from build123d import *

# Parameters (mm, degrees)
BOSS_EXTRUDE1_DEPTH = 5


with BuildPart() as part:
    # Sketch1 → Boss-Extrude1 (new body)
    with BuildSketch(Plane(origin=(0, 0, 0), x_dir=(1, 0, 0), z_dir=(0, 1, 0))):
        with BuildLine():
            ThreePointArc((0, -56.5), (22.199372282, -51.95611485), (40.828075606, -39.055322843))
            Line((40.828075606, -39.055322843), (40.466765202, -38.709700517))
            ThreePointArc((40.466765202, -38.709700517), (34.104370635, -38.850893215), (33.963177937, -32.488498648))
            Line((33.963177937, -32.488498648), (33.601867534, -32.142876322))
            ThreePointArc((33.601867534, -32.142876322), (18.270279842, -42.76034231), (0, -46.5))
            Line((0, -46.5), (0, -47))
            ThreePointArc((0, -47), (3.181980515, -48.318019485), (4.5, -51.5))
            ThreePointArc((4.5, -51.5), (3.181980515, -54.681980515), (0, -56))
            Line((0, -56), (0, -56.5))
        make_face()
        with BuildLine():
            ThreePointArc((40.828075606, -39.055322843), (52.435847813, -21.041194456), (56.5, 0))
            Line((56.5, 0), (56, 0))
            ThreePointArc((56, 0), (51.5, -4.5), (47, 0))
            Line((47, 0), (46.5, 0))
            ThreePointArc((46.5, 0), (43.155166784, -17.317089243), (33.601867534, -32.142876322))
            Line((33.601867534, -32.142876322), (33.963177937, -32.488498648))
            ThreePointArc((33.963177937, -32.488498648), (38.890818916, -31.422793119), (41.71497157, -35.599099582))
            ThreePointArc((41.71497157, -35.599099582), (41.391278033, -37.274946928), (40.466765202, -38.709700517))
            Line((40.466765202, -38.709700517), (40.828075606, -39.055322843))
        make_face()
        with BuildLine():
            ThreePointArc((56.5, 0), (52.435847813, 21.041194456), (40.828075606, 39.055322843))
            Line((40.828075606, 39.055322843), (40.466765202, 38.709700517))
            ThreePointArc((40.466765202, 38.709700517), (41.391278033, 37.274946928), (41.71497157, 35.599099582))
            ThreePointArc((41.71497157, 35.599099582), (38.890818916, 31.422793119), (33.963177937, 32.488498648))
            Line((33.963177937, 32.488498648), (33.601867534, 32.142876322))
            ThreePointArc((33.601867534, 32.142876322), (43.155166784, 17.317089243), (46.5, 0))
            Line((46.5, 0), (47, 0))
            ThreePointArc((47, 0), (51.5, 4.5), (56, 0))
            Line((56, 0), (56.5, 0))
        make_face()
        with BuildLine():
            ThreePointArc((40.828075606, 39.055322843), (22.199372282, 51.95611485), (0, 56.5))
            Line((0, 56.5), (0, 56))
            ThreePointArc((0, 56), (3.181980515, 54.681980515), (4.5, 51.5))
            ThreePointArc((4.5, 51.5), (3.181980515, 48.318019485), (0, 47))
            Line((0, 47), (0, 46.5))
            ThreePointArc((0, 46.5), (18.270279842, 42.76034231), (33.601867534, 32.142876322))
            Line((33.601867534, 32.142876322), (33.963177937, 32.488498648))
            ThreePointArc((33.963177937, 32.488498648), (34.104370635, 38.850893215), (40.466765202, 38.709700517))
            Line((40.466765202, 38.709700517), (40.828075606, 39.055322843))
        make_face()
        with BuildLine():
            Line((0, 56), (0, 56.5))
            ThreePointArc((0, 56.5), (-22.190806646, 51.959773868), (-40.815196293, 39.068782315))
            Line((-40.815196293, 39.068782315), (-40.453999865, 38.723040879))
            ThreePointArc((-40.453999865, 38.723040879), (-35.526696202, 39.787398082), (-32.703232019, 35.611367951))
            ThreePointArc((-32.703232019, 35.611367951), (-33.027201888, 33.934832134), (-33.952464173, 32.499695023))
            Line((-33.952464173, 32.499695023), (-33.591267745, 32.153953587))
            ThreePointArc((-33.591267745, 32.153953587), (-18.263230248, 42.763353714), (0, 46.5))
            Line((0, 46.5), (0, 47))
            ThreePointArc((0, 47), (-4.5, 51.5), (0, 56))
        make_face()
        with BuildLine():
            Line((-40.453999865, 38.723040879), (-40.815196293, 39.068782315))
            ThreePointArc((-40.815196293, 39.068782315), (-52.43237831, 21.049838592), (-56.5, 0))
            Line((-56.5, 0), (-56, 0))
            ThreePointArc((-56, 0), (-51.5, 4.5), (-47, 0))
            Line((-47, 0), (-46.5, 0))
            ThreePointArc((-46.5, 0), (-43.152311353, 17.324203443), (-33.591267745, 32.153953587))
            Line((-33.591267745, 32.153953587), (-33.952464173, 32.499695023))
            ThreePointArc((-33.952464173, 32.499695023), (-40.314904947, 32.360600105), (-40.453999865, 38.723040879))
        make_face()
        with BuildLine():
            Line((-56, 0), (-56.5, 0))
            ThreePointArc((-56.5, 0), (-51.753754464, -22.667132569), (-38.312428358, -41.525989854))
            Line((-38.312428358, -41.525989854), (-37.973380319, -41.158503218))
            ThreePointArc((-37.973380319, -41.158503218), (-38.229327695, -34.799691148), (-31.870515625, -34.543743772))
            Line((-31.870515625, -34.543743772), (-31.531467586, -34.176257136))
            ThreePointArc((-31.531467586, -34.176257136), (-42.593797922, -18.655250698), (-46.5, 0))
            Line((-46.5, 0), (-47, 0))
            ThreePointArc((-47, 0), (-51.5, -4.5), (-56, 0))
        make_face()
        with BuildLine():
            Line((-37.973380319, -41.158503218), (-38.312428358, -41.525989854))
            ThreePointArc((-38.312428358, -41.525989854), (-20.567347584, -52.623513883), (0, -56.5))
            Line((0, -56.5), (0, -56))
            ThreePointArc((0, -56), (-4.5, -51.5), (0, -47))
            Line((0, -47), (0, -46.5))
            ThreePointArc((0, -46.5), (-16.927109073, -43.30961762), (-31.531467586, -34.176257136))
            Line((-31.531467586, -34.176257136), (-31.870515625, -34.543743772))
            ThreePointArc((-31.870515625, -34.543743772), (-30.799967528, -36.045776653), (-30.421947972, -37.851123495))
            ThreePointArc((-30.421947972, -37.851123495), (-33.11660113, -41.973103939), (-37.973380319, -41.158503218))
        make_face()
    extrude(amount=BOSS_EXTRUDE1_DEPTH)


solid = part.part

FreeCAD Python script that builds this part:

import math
import FreeCAD as App
import Part
import Sketcher

V = App.Vector

doc = App.newDocument("Part")
body = doc.addObject("PartDesign::Body", "Body")

# Sketch on XZ plane
sketch1 = doc.addObject("Sketcher::SketchObject", "Sketch")
body.addObject(sketch1)
sketch1.AttachmentSupport = (doc.XZ_Plane, [""])
sketch1.MapMode = "FlatFace"
sketch1.addGeometry([
    Part.ArcOfCircle(Part.Circle(V(0, 0, 0), V(0, 0, 1), 56.5), math.radians(44), math.radians(90)),  # 0
    Part.ArcOfCircle(Part.Circle(V(0, 0, 0), V(0, 0, 1), 56.5), math.radians(0), math.radians(44)),  # 1
    Part.ArcOfCircle(Part.Circle(V(0, 0, 0), V(0, 0, 1), 56.5), math.radians(-44), math.radians(0)),  # 2
    Part.ArcOfCircle(Part.Circle(V(0, 0, 0), V(0, 0, 1), 56.5), math.radians(-90), math.radians(-44)),  # 3
    Part.ArcOfCircle(Part.Circle(V(0, 0, 0), V(0, 0, 1), 56.5), math.radians(-136), math.radians(-90)),  # 4
    Part.ArcOfCircle(Part.Circle(V(0, 0, 0), V(0, 0, 1), 56.5), math.radians(-180), math.radians(-136)),  # 5
    Part.ArcOfCircle(Part.Circle(V(0, 0, 0), V(0, 0, 1), 56.5), math.radians(133), math.radians(180)),  # 6
    Part.ArcOfCircle(Part.Circle(V(0, 0, 0), V(0, 0, 1), 56.5), math.radians(90), math.radians(133)),  # 7
    Part.ArcOfCircle(Part.Circle(V(-34.9, 37.9, 0), V(0, 0, 1), 4.5), math.radians(133), math.radians(313)),  # 8
    Part.ArcOfCircle(Part.Circle(V(-34.9, 37.9, 0), V(0, 0, 1), 4.5), math.radians(-47), math.radians(0)),  # 9
    Part.ArcOfCircle(Part.Circle(V(-34.9, 37.9, 0), V(0, 0, 1), 4.5), math.radians(0), math.radians(133)),  # 10
    Part.ArcOfCircle(Part.Circle(V(0, 0, 0), V(0, 0, 1), 46.5), math.radians(133), math.radians(180)),  # 11
    Part.ArcOfCircle(Part.Circle(V(0, 0, 0), V(0, 0, 1), 46.5), math.radians(180), math.radians(224)),  # 12
    Part.ArcOfCircle(Part.Circle(V(0, 0, 0), V(0, 0, 1), 46.5), math.radians(-136), math.radians(-90)),  # 13
    Part.ArcOfCircle(Part.Circle(V(0, 0, 0), V(0, 0, 1), 46.5), math.radians(-90), math.radians(-44)),  # 14
    Part.ArcOfCircle(Part.Circle(V(0, 0, 0), V(0, 0, 1), 46.5), math.radians(-44), math.radians(0)),  # 15
    Part.ArcOfCircle(Part.Circle(V(0, 0, 0), V(0, 0, 1), 46.5), math.radians(0), math.radians(44)),  # 16
    Part.ArcOfCircle(Part.Circle(V(0, 0, 0), V(0, 0, 1), 46.5), math.radians(44), math.radians(90)),  # 17
    Part.ArcOfCircle(Part.Circle(V(0, 0, 0), V(0, 0, 1), 46.5), math.radians(90), math.radians(133)),  # 18
    Part.ArcOfCircle(Part.Circle(V(0, 51.5, 0), V(0, 0, 1), 4.5), math.radians(-90), math.radians(0)),  # 19
    Part.ArcOfCircle(Part.Circle(V(0, 51.5, 0), V(0, 0, 1), 4.5), math.radians(0), math.radians(90)),  # 20
    Part.ArcOfCircle(Part.Circle(V(0, 51.5, 0), V(0, 0, 1), 4.5), math.radians(90), math.radians(270)),  # 21
    Part.Circle(V(-51.5, 0, 0), V(0, 0, 1), 4.5),  # 22
    Part.ArcOfCircle(Part.Circle(V(-37.2, -35.6, 0), V(0, 0, 1), 4.5), math.radians(-136), math.radians(0)),  # 23
    Part.ArcOfCircle(Part.Circle(V(-37.2, -35.6, 0), V(0, 0, 1), 4.5), math.radians(0), math.radians(44)),  # 24
    Part.ArcOfCircle(Part.Circle(V(-37.2, -35.6, 0), V(0, 0, 1), 4.5), math.radians(44), math.radians(224)),  # 25
    Part.ArcOfCircle(Part.Circle(V(0, -51.5, 0), V(0, 0, 1), 4.5), math.radians(-90), math.radians(0)),  # 26
    Part.ArcOfCircle(Part.Circle(V(0, -51.5, 0), V(0, 0, 1), 4.5), math.radians(0), math.radians(90)),  # 27
    Part.ArcOfCircle(Part.Circle(V(0, -51.5, 0), V(0, 0, 1), 4.5), math.radians(90), math.radians(270)),  # 28
    Part.ArcOfCircle(Part.Circle(V(37.2, -35.6, 0), V(0, 0, 1), 4.5), math.radians(-44), math.radians(0)),  # 29
    Part.ArcOfCircle(Part.Circle(V(37.2, -35.6, 0), V(0, 0, 1), 4.5), math.radians(0), math.radians(136)),  # 30
    Part.ArcOfCircle(Part.Circle(V(37.2, -35.6, 0), V(0, 0, 1), 4.5), math.radians(136), math.radians(316)),  # 31
    Part.Circle(V(51.5, 0, 0), V(0, 0, 1), 4.5),  # 32
    Part.ArcOfCircle(Part.Circle(V(37.2, 35.6, 0), V(0, 0, 1), 4.5), math.radians(44), math.radians(224)),  # 33
    Part.ArcOfCircle(Part.Circle(V(37.2, 35.6, 0), V(0, 0, 1), 4.5), math.radians(-136), math.radians(0)),  # 34
    Part.ArcOfCircle(Part.Circle(V(37.2, 35.6, 0), V(0, 0, 1), 4.5), math.radians(0), math.radians(44)),  # 35
], False)
sketch1.addConstraint([
    Sketcher.Constraint("Tangent", 0, 1, 1, 2),
    Sketcher.Constraint("Tangent", 1, 1, 2, 2),
    Sketcher.Constraint("Tangent", 2, 1, 3, 2),
    Sketcher.Constraint("Tangent", 3, 1, 4, 2),
    Sketcher.Constraint("Tangent", 4, 1, 5, 2),
    Sketcher.Constraint("Tangent", 5, 1, 6, 2),
    Sketcher.Constraint("Tangent", 6, 1, 7, 2),
    Sketcher.Constraint("Tangent", 7, 1, 0, 2),
    Sketcher.Constraint("Tangent", 8, 2, 9, 1),
    Sketcher.Constraint("Tangent", 9, 2, 10, 1),
    Sketcher.Constraint("Tangent", 10, 2, 8, 1),
    Sketcher.Constraint("Tangent", 11, 2, 12, 1),
    Sketcher.Constraint("Tangent", 12, 2, 13, 1),
    Sketcher.Constraint("Tangent", 13, 2, 14, 1),
    Sketcher.Constraint("Tangent", 14, 2, 15, 1),
    Sketcher.Constraint("Tangent", 15, 2, 16, 1),
    Sketcher.Constraint("Tangent", 16, 2, 17, 1),
    Sketcher.Constraint("Tangent", 17, 2, 18, 1),
    Sketcher.Constraint("Tangent", 18, 2, 11, 1),
    Sketcher.Constraint("Tangent", 19, 2, 20, 1),
    Sketcher.Constraint("Tangent", 20, 2, 21, 1),
    Sketcher.Constraint("Tangent", 21, 2, 19, 1),
    Sketcher.Constraint("Tangent", 23, 2, 24, 1),
    Sketcher.Constraint("Tangent", 24, 2, 25, 1),
    Sketcher.Constraint("Tangent", 25, 2, 23, 1),
    Sketcher.Constraint("Tangent", 26, 2, 27, 1),
    Sketcher.Constraint("Tangent", 27, 2, 28, 1),
    Sketcher.Constraint("Tangent", 28, 2, 26, 1),
    Sketcher.Constraint("Tangent", 29, 2, 30, 1),
    Sketcher.Constraint("Tangent", 30, 2, 31, 1),
    Sketcher.Constraint("Tangent", 31, 2, 29, 1),
    Sketcher.Constraint("Tangent", 33, 2, 34, 1),
    Sketcher.Constraint("Tangent", 34, 2, 35, 1),
    Sketcher.Constraint("Tangent", 35, 2, 33, 1),
    Sketcher.Constraint("Coincident", 0, 3, -1, 1),
    Sketcher.Constraint("Coincident", 2, 3, -1, 1),
    Sketcher.Constraint("Coincident", 4, 3, -1, 1),
    Sketcher.Constraint("Coincident", 11, 3, -1, 1),
    Sketcher.Constraint("Coincident", 13, 3, -1, 1),
    Sketcher.Constraint("Coincident", 15, 3, -1, 1),
    Sketcher.Constraint("Equal", 4, 5),
    Sketcher.Constraint("Equal", 15, 16),
    Sketcher.Constraint("Equal", 10, 19),
    Sketcher.Constraint("Equal", 21, 22),
    Sketcher.Constraint("Equal", 22, 23),
    Sketcher.Constraint("Equal", 25, 26),
    Sketcher.Constraint("Equal", 28, 29),
    Sketcher.Constraint("Equal", 31, 32),
    Sketcher.Constraint("Equal", 32, 33),
    Sketcher.Constraint("Symmetric", 19, 3, 26, 3, -1, 1),
    Sketcher.Constraint("Symmetric", 22, 3, 32, 3, -1, 1),
    Sketcher.Constraint("Symmetric", 29, 3, 33, 3, -1),
    Sketcher.Constraint("Symmetric", 19, 2, 26, 2, -1),
    Sketcher.Constraint("PointOnObject", 22, 3, -1),
    Sketcher.Constraint("PointOnObject", 1, 1, -1),
    Sketcher.Constraint("PointOnObject", 3, 1, -2),
    Sketcher.Constraint("PointOnObject", 5, 1, -1),
    Sketcher.Constraint("PointOnObject", 7, 1, -2),
    Sketcher.Constraint("PointOnObject", 11, 2, -1),
    Sketcher.Constraint("PointOnObject", 13, 2, -2),
    Sketcher.Constraint("PointOnObject", 15, 2, -1),
    Sketcher.Constraint("PointOnObject", 17, 2, -2),
    Sketcher.Constraint("PointOnObject", 20, 2, -2),
    Sketcher.Constraint("PointOnObject", 21, 2, -2),
    Sketcher.Constraint("PointOnObject", 27, 2, -2),
    Sketcher.Constraint("PointOnObject", 28, 2, -2),
    Sketcher.Constraint("Horizontal", 10, 3, 9, 2),
    Sketcher.Constraint("Horizontal", 21, 3, 19, 2),
    Sketcher.Constraint("Horizontal", 25, 3, 23, 2),
    Sketcher.Constraint("Horizontal", 31, 3, 29, 2),
    Sketcher.Constraint("Horizontal", 35, 3, 34, 2),
    Sketcher.Constraint("Vertical", 0, 1, 2, 1),
    Sketcher.Constraint("Vertical", 14, 2, 16, 2),
    Sketcher.Constraint("Vertical", 30, 2, 33, 2),
    Sketcher.Constraint("Vertical", 31, 2, 35, 2),
    Sketcher.Constraint("Diameter", 22, 9.0),
    Sketcher.Constraint("Radius", 0, 56.5),
    Sketcher.Constraint("Radius", 11, 46.5),
    Sketcher.Constraint("DistanceY", -1, 1, 20, 2, 56.0),
    Sketcher.Constraint("DistanceX", 22, 3, -1, 1, 51.5),
    Sketcher.Constraint("DistanceX", 25, 2, -1, 1, 40.454),
    Sketcher.Constraint("DistanceY", 29, 3, -1, 1, 35.5991),
    Sketcher.Constraint("DistanceY", 30, 2, -1, 1, 32.488499),
    Sketcher.Constraint("DistanceY", 31, 2, -1, 1, 38.709701),
    Sketcher.Constraint("DistanceX", -1, 1, 29, 3, 37.214972),
    Sketcher.Constraint("DistanceX", 6, 1, -1, 1, 38.312428),
    Sketcher.Constraint("DistanceX", 10, 2, -1, 1, 37.97338),
    Sketcher.Constraint("DistanceY", 25, 2, -1, 1, 38.723041),
    Sketcher.Constraint("DistanceX", 8, 3, -1, 1, 34.921948),
    Sketcher.Constraint("DistanceY", -1, 1, 8, 3, 37.851123),
    Sketcher.Constraint("DistanceX", 23, 3, -1, 1, 37.203232),
    Sketcher.Constraint("DistanceX", -1, 1, 0, 1, 40.828076),
    Sketcher.Constraint("DistanceX", 4, 1, -1, 1, 40.815196),
    Sketcher.Constraint("DistanceX", 8, 2, -1, 1, 31.870516),
    Sketcher.Constraint("DistanceX", 12, 2, -1, 1, 33.591268),
    Sketcher.Constraint("DistanceX", -1, 1, 14, 2, 33.601868),
    Sketcher.Constraint("DistanceX", 18, 2, -1, 1, 31.531468),
    Sketcher.Constraint("DistanceX", 24, 2, -1, 1, 33.952464),
])
pad1 = doc.addObject("PartDesign::Pad", "Pad")
body.addObject(pad1)
pad1.Profile = sketch1
pad1.Length = 5
pad1.Reversed = True

doc.recompute()
